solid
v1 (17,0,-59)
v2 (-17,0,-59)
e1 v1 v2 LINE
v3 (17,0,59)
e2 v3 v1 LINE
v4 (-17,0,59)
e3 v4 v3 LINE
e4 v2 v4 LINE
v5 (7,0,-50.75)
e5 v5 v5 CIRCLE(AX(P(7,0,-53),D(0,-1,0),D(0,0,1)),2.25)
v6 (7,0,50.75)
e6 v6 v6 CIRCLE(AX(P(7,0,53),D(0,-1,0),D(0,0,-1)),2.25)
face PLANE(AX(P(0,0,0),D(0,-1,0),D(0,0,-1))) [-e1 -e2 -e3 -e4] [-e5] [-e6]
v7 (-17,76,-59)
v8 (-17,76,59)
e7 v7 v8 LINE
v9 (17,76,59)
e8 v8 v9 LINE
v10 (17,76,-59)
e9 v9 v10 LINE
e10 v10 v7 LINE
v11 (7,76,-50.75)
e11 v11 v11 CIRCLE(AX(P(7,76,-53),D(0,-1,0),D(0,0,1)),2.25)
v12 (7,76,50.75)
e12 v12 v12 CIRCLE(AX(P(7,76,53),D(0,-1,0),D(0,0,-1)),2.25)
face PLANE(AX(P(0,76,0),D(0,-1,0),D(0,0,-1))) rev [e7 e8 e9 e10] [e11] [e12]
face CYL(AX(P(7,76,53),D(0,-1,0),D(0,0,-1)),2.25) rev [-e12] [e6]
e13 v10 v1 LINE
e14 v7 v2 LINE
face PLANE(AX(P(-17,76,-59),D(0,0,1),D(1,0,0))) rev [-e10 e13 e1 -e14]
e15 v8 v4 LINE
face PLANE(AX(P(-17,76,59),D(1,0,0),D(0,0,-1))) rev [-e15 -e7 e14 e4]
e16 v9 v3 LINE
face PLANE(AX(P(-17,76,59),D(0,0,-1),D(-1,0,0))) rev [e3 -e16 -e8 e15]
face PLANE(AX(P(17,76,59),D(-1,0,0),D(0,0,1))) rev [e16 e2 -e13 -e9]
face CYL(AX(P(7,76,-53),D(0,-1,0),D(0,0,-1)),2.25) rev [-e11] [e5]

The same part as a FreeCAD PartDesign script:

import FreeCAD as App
import Part
import Sketcher

V = App.Vector

doc = App.newDocument("Part")
params = doc.addObject("Spreadsheet::Sheet", "Params")
for row, (alias, value) in enumerate([
    ("sketch1_width", "34 mm"),
    ("sketch1_height", "118 mm"),
    ("pad1_length", "76 mm"),
    ("sketch2_diameter", "4.5 mm"),
], start=1):
    params.set(f"A{row}", alias)
    params.set(f"B{row}", "=" + value)
    params.setAlias(f"B{row}", alias)

body = doc.addObject("PartDesign::Body", "Body")

sketch1 = body.newObject("Sketcher::SketchObject", "Sketch")
sketch1.AttachmentSupport = (doc.getObject("XZ_Plane"), [""])
sketch1.MapMode = "FlatFace"
sketch1.addGeometry(Part.LineSegment(V(-17, -59, 0), V(-17, 59, 0)), False)
sketch1.addGeometry(Part.LineSegment(V(-17, 59, 0), V(17, 59, 0)), False)
sketch1.addGeometry(Part.LineSegment(V(17, 59, 0), V(17, -59, 0)), False)
sketch1.addGeometry(Part.LineSegment(V(17, -59, 0), V(-17, -59, 0)), False)
sketch1.addConstraint(Sketcher.Constraint("Coincident", 0, 2, 1, 1))
sketch1.addConstraint(Sketcher.Constraint("Coincident", 1, 2, 2, 1))
sketch1.addConstraint(Sketcher.Constraint("Coincident", 2, 2, 3, 1))
sketch1.addConstraint(Sketcher.Constraint("Coincident", 3, 2, 0, 1))
sketch1.addConstraint(Sketcher.Constraint("Vertical", 0))
sketch1.addConstraint(Sketcher.Constraint("Horizontal", 1))
sketch1.addConstraint(Sketcher.Constraint("Vertical", 2))
sketch1.addConstraint(Sketcher.Constraint("Horizontal", 3))
sketch1.addConstraint(Sketcher.Constraint("Symmetric", 0, 2, 2, 2, -1, 1))
sketch1.addConstraint(Sketcher.Constraint("DistanceX", 1, 1, 1, 2, 34.0))
sketch1.addConstraint(Sketcher.Constraint("DistanceY", 0, 1, 0, 2, 118.0))
sketch1.setExpression("Constraints[9]", "Params.sketch1_width")
sketch1.setExpression("Constraints[10]", "Params.sketch1_height")
pad1 = body.newObject("PartDesign::Pad", "Pad")
pad1.Profile = sketch1
pad1.setExpression("Length", "Params.pad1_length")
pad1.Reversed = True

sketch2 = body.newObject("Sketcher::SketchObject", "Sketch001")
sketch2.AttachmentSupport = (doc.getObject("XZ_Plane"), [""])
sketch2.MapMode = "FlatFace"
sketch2.addGeometry(Part.Circle(V(7, 53, 0), V(0, 0, 1), 2.2), False)
sketch2.addGeometry(Part.Circle(V(7, -53, 0), V(0, 0, 1), 2.2), False)
sketch2.addConstraint(Sketcher.Constraint("Equal", 0, 1))
sketch2.addConstraint(Sketcher.Constraint("Symmetric", 0, 3, 1, 3, -1))
sketch2.addConstraint(Sketcher.Constraint("Diameter", 0, 4.5))
sketch2.addConstraint(Sketcher.Constraint("DistanceX", -1, 1, 0, 3, 7.0))
sketch2.addConstraint(Sketcher.Constraint("DistanceY", -1, 1, 0, 3, 53.0))
sketch2.setExpression("Constraints[2]", "Params.sketch2_diameter")
pocket1 = body.newObject("PartDesign::Pocket", "Pocket")
pocket1.Profile = sketch2
pocket1.Type = "ThroughAll"

doc.recompute()
